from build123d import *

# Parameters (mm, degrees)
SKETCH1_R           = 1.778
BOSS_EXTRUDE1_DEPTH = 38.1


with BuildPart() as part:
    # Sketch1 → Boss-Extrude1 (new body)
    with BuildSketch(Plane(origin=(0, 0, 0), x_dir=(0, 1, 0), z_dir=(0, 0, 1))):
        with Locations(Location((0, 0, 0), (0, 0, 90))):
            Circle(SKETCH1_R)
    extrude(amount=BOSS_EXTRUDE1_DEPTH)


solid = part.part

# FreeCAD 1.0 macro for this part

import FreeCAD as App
import Part
import Sketcher

V = App.Vector
Q = App.Units.Quantity

doc = App.newDocument("Part")
body = doc.addObject("PartDesign::Body", "Body")

# Sketch on XY plane
sketch1 = doc.addObject("Sketcher::SketchObject", "Sketch")
body.addObject(sketch1)
sketch1.AttachmentSupport = (doc.XY_Plane, [""])
sketch1.MapMode = "FlatFace"
sketch1.addGeometry(Part.Circle(V(0, 0, 0), V(0, 0, 1), 1.778), False)
sketch1.addConstraint(Sketcher.Constraint("Coincident", 0, 3, -1, 1))
sketch1.addConstraint(Sketcher.Constraint("Diameter", 0, Q("0.14 in")))
pad1 = doc.addObject("PartDesign::Pad", "Pad")
body.addObject(pad1)
pad1.Profile = sketch1
pad1.Length = Q("1.5 in")

doc.recompute()
